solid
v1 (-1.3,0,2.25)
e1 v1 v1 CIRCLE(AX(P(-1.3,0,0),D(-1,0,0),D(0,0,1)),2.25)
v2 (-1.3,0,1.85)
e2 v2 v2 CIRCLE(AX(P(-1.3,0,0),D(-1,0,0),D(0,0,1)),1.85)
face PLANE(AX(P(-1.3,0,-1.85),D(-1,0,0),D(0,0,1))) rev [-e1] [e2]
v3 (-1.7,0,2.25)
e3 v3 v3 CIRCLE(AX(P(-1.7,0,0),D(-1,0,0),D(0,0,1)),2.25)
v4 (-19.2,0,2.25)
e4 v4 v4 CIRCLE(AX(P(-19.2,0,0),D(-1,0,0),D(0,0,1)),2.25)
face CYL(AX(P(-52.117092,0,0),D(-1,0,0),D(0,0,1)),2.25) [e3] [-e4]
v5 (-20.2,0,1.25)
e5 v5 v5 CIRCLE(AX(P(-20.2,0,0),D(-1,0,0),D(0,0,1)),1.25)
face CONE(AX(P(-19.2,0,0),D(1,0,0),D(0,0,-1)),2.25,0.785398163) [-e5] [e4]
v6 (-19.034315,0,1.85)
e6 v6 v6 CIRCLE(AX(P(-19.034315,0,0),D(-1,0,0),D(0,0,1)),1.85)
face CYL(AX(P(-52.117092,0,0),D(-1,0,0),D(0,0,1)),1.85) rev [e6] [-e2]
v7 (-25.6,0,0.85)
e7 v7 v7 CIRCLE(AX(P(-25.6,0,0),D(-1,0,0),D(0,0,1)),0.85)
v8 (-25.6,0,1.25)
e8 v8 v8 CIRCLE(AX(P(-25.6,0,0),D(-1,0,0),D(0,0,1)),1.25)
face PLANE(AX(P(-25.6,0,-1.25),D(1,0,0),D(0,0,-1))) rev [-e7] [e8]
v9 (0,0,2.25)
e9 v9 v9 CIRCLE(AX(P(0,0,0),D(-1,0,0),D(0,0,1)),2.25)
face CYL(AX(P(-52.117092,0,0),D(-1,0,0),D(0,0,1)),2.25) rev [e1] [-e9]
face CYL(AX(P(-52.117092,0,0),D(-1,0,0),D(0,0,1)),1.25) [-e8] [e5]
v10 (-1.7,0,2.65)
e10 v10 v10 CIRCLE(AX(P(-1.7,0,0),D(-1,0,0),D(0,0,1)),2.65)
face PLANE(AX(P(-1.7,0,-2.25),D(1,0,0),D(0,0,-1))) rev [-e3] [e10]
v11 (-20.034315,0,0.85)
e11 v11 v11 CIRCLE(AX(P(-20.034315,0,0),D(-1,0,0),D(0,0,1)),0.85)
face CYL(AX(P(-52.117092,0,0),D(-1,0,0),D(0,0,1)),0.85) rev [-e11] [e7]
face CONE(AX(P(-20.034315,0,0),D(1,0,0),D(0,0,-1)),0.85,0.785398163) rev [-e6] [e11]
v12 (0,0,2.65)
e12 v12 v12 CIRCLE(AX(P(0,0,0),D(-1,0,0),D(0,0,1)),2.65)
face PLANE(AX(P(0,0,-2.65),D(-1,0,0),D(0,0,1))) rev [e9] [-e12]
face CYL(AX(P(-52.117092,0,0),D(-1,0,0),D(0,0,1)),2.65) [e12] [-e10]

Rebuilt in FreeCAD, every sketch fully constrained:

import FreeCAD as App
import Part
import Sketcher

V = App.Vector
Q = App.Units.Quantity

doc = App.newDocument("Part")
body = doc.addObject("PartDesign::Body", "Body")

sketch1 = body.newObject("Sketcher::SketchObject", "Sketch")
sketch1.AttachmentSupport = (doc.getObject("XZ_Plane"), [""])
sketch1.MapMode = "FlatFace"
sketch1.addGeometry([
    Part.LineSegment(V(-25.6, -0.85, 0), V(-20.03, -0.85, 0)),
    Part.LineSegment(V(-20.03, -0.85, 0), V(-19.03, -1.85, 0)),
    Part.LineSegment(V(-19.03, -1.85, 0), V(-1.3, -1.85, 0)),
    Part.LineSegment(V(-1.3, -1.85, 0), V(-1.3, -2.25, 0)),
    Part.LineSegment(V(-1.3, -2.25, 0), V(0, -2.25, 0)),
    Part.LineSegment(V(0, -2.25, 0), V(0, -2.65, 0)),
    Part.LineSegment(V(0, -2.65, 0), V(-1.7, -2.65, 0)),
    Part.LineSegment(V(-1.7, -2.65, 0), V(-1.7, -2.25, 0)),
    Part.LineSegment(V(-1.7, -2.25, 0), V(-19.2, -2.25, 0)),
    Part.LineSegment(V(-19.2, -2.25, 0), V(-20.2, -1.25, 0)),
    Part.LineSegment(V(-20.2, -1.25, 0), V(-25.6, -1.25, 0)),
    Part.LineSegment(V(-25.6, -1.25, 0), V(-25.6, -0.85, 0)),
], False)
sketch1.addConstraint([
    Sketcher.Constraint("Coincident", 0, 2, 1, 1),
    Sketcher.Constraint("Coincident", 1, 2, 2, 1),
    Sketcher.Constraint("Coincident", 2, 2, 3, 1),
    Sketcher.Constraint("Coincident", 3, 2, 4, 1),
    Sketcher.Constraint("Coincident", 4, 2, 5, 1),
    Sketcher.Constraint("Coincident", 5, 2, 6, 1),
    Sketcher.Constraint("Coincident", 6, 2, 7, 1),
    Sketcher.Constraint("Coincident", 7, 2, 8, 1),
    Sketcher.Constraint("Coincident", 8, 2, 9, 1),
    Sketcher.Constraint("Coincident", 9, 2, 10, 1),
    Sketcher.Constraint("Coincident", 10, 2, 11, 1),
    Sketcher.Constraint("Coincident", 11, 2, 0, 1),
    Sketcher.Constraint("Horizontal", 0),
    Sketcher.Constraint("Horizontal", 2),
    Sketcher.Constraint("Vertical", 3),
    Sketcher.Constraint("Horizontal", 4),
    Sketcher.Constraint("Vertical", 5),
    Sketcher.Constraint("Horizontal", 6),
    Sketcher.Constraint("Vertical", 7),
    Sketcher.Constraint("Horizontal", 8),
    Sketcher.Constraint("Horizontal", 10),
    Sketcher.Constraint("Vertical", 11),
    Sketcher.Constraint("PointOnObject", 4, 2, -2),
    Sketcher.Constraint("Parallel", 1, 9),
    Sketcher.Constraint("Horizontal", 4, 2, 7, 2),
    Sketcher.Constraint("Equal", 3, 5),
    Sketcher.Constraint("Equal", 7, 11),
    Sketcher.Constraint("Angle", 1, Q("-45 deg")),
    Sketcher.Constraint("DistanceX", 4, 1, 4, 2, Q("1.3 mm")),
    Sketcher.Constraint("DistanceX", 6, 2, 6, 1, Q("1.7 mm")),
    Sketcher.Constraint("DistanceX", 8, 2, 8, 1, Q("17.5 mm")),
    Sketcher.Constraint("DistanceX", 10, 2, 10, 1, Q("5.4 mm")),
    Sketcher.Constraint("DistanceY", 3, 2, 3, 1, Q("0.4 mm")),
    Sketcher.Constraint("DistanceX", 0, 2, 1, 2, Q("1 mm")),
    Sketcher.Constraint("DistanceY", 0, 2, -1, 1, Q("0.85 mm")),
    Sketcher.Constraint("DistanceX", 0, 1, 0, 2, Q("5.565685 mm")),
])
revolution = body.newObject("PartDesign::Revolution", "Revolution")
revolution.Profile = sketch1
revolution.ReferenceAxis = (sketch1, ["H_Axis"])
revolution.Angle = 360

doc.recompute()
